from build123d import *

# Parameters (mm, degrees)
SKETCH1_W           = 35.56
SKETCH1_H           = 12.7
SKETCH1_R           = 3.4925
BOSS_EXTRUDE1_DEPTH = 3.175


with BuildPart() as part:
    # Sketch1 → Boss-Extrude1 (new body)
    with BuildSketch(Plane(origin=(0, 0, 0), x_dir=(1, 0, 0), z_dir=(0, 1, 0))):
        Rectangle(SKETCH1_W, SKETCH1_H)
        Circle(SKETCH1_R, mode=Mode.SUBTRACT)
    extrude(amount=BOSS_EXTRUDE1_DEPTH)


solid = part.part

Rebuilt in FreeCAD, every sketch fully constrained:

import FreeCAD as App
import Part
import Sketcher

V = App.Vector
Q = App.Units.Quantity

doc = App.newDocument("Part")
body = doc.addObject("PartDesign::Body", "Body")

# Sketch on XZ plane
sketch1 = doc.addObject("Sketcher::SketchObject", "Sketch")
body.addObject(sketch1)
sketch1.AttachmentSupport = (doc.XZ_Plane, [""])
sketch1.MapMode = "FlatFace"
sketch1.addGeometry([
    Part.LineSegment(V(-17.78, -6.35, 0), V(-17.78, 6.35, 0)),  # 0
    Part.LineSegment(V(-17.78, 6.35, 0), V(17.78, 6.35, 0)),  # 1
    Part.LineSegment(V(17.78, 6.35, 0), V(17.78, -6.35, 0)),  # 2
    Part.LineSegment(V(17.78, -6.35, 0), V(-17.78, -6.35, 0)),  # 3
    Part.Circle(V(0, 0, 0), V(0, 0, 1), 3.4925),  # 4
], False)
sketch1.addConstraint([
    Sketcher.Constraint("Coincident", 0, 2, 1, 1),
    Sketcher.Constraint("Coincident", 1, 2, 2, 1),
    Sketcher.Constraint("Coincident", 2, 2, 3, 1),
    Sketcher.Constraint("Coincident", 3, 2, 0, 1),
    Sketcher.Constraint("Vertical", 0),
    Sketcher.Constraint("Horizontal", 1),
    Sketcher.Constraint("Vertical", 2),
    Sketcher.Constraint("Horizontal", 3),
    Sketcher.Constraint("Coincident", 4, 3, -1, 1),
    Sketcher.Constraint("Symmetric", 0, 2, 2, 2, -1, 1),
    Sketcher.Constraint("Diameter", 4, Q("0.275 in")),
    Sketcher.Constraint("DistanceX", 1, 1, 1, 2, Q("1.4 in")),
    Sketcher.Constraint("DistanceY", 0, 1, 0, 2, Q("0.5 in")),
])
pad1 = doc.addObject("PartDesign::Pad", "Pad")
body.addObject(pad1)
pad1.Profile = sketch1
pad1.Length = Q("0.125 in")
pad1.Reversed = True

doc.recompute()
